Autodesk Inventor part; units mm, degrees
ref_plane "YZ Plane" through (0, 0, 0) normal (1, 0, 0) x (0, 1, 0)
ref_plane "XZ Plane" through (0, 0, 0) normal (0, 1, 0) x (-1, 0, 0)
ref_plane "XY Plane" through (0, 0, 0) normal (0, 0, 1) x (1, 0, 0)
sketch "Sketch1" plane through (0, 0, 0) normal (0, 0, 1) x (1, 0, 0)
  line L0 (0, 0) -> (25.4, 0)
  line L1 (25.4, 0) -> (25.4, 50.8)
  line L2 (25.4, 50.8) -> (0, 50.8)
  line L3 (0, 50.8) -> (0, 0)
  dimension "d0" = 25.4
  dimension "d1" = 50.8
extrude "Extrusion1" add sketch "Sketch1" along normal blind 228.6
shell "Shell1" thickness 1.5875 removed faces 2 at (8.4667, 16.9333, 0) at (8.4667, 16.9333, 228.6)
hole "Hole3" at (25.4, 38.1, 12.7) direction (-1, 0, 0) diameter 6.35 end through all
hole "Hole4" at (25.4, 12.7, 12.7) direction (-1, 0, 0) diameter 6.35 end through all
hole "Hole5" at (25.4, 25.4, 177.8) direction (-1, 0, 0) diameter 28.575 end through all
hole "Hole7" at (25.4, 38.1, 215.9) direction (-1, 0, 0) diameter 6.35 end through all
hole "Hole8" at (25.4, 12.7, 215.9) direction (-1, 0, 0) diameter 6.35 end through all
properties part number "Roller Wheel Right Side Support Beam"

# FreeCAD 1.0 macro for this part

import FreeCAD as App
import Part
import Sketcher
from FreeCAD import Vector
Q = App.Units.Quantity


def faces_at(feature, points):
    """Names of the faces that lie closest to the given points."""
    faces = feature.Shape.Faces
    near = lambda p: min(range(len(faces)), key=lambda i: faces[i].distToShape(Part.Vertex(*p))[0])
    return sorted({f"Face{near(p) + 1}" for p in points})


def add_polygon(sketch, points):
    """Adds a closed chain of lines whose ends are joined by coincident constraints."""
    first, n = sketch.GeometryCount, len(points)
    for a, b in zip(points, points[1:] + points[:1]):
        sketch.addGeometry(Part.LineSegment(App.Vector(*a, 0), App.Vector(*b, 0)), False)
    for i in range(n):
        sketch.addConstraint(Sketcher.Constraint("Coincident", first + i, 2, first + (i + 1) % n, 1))

doc = App.newDocument("Part")
params = doc.addObject("Spreadsheet::Sheet", "Params")
for row, (alias, value) in enumerate([
    ("sketch1_width", "1 in"),
    ("sketch1_height", "2 in"),
    ("pad1_length", "9 in"),
    ("thickness_wall", "0.0625 in"),
    ("sketch2_diameter", "0.25 in"),
    ("hole_diameter", "0.25 in"),
    ("sketch3_diameter", "0.25 in"),
    ("hole2_diameter", "0.25 in"),
    ("sketch4_diameter", "1.125 in"),
    ("hole3_diameter", "1.125 in"),
    ("sketch5_diameter", "0.25 in"),
    ("hole4_diameter", "0.25 in"),
    ("sketch6_diameter", "0.25 in"),
    ("hole5_diameter", "0.25 in"),
], start=1):
    params.set(f"A{row}", alias)
    params.set(f"B{row}", "=" + value)
    params.setAlias(f"B{row}", alias)

body = doc.addObject("PartDesign::Body", "Body")

sketch1 = body.newObject("Sketcher::SketchObject", "Sketch")
sketch1.AttachmentSupport = (doc.getObject("XY_Plane"), [""])
sketch1.MapMode = "FlatFace"
add_polygon(sketch1, [(0, 51), (0, 0), (25, 0), (25, 51)])
sketch1.addConstraint(Sketcher.Constraint("Vertical", 0))
sketch1.addConstraint(Sketcher.Constraint("Horizontal", 1))
sketch1.addConstraint(Sketcher.Constraint("Vertical", 2))
sketch1.addConstraint(Sketcher.Constraint("Horizontal", 3))
sketch1.addConstraint(Sketcher.Constraint("Coincident", 0, 2, -1, 1))
sketch1.addConstraint(Sketcher.Constraint("DistanceX", 1, 1, 1, 2, Q("1 in")))
sketch1.addConstraint(Sketcher.Constraint("DistanceY", 0, 2, 0, 1, Q("2 in")))
sketch1.setExpression("Constraints[9]", "Params.sketch1_width")
sketch1.setExpression("Constraints[10]", "Params.sketch1_height")
pad1 = body.newObject("PartDesign::Pad", "Pad")
pad1.Profile = sketch1
pad1.setExpression("Length", "Params.pad1_length")
doc.recompute()

thickness = body.newObject("PartDesign::Thickness", "Thickness")
thickness.Base = (pad1, faces_at(pad1, [(8.467, 16.933, 0), (8.467, 16.933, 228.6)]))
thickness.setExpression("Value", "Params.thickness_wall")
thickness.Reversed = True
thickness.Join = "Intersection"

sketch2 = body.newObject("Sketcher::SketchObject", "Sketch001")
sketch2.AttachmentSupport = (doc.getObject("YZ_Plane"), [""])
sketch2.MapMode = "FlatFace"
sketch2.AttachmentOffset = App.Placement(Vector(0, 0, 1 * 25.4), App.Rotation())
sketch2.addGeometry(Part.Circle(Vector(38.1, 12.7, 0), Vector(0, 0, 1), 3.2), False)
sketch2.addConstraint(Sketcher.Constraint("Diameter", 0, Q("0.25 in")))
sketch2.addConstraint(Sketcher.Constraint("DistanceX", -1, 1, 0, 3, Q("1.5 in")))
sketch2.addConstraint(Sketcher.Constraint("DistanceY", -1, 1, 0, 3, Q("0.5 in")))
sketch2.setExpression("Constraints[0]", "Params.sketch2_diameter")
doc.recompute()
hole = body.newObject("PartDesign::Hole", "Hole")
hole.Profile = sketch2
hole.ThreadType = "None"
hole.setExpression("Diameter", "Params.hole_diameter")
hole.DepthType = "ThroughAll"

sketch3 = body.newObject("Sketcher::SketchObject", "Sketch002")
sketch3.AttachmentSupport = (doc.getObject("YZ_Plane"), [""])
sketch3.MapMode = "FlatFace"
sketch3.AttachmentOffset = App.Placement(Vector(0, 0, 1 * 25.4), App.Rotation())
sketch3.addGeometry(Part.Circle(Vector(12.7, 12.7, 0), Vector(0, 0, 1), 3.2), False)
sketch3.addConstraint(Sketcher.Constraint("Diameter", 0, Q("0.25 in")))
sketch3.addConstraint(Sketcher.Constraint("DistanceX", -1, 1, 0, 3, Q("0.5 in")))
sketch3.addConstraint(Sketcher.Constraint("DistanceY", -1, 1, 0, 3, Q("0.5 in")))
sketch3.setExpression("Constraints[0]", "Params.sketch3_diameter")
doc.recompute()
hole2 = body.newObject("PartDesign::Hole", "Hole001")
hole2.Profile = sketch3
hole2.ThreadType = "None"
hole2.setExpression("Diameter", "Params.hole2_diameter")
hole2.DepthType = "ThroughAll"

sketch4 = body.newObject("Sketcher::SketchObject", "Sketch003")
sketch4.AttachmentSupport = (doc.getObject("YZ_Plane"), [""])
sketch4.MapMode = "FlatFace"
sketch4.AttachmentOffset = App.Placement(Vector(0, 0, 1 * 25.4), App.Rotation())
sketch4.addGeometry(Part.Circle(Vector(25, 178, 0), Vector(0, 0, 1), 14), False)
sketch4.addConstraint(Sketcher.Constraint("Diameter", 0, Q("1.125 in")))
sketch4.addConstraint(Sketcher.Constraint("DistanceX", -1, 1, 0, 3, Q("1 in")))
sketch4.addConstraint(Sketcher.Constraint("DistanceY", -1, 1, 0, 3, Q("7 in")))
sketch4.setExpression("Constraints[0]", "Params.sketch4_diameter")
doc.recompute()
hole3 = body.newObject("PartDesign::Hole", "Hole002")
hole3.Profile = sketch4
hole3.ThreadType = "None"
hole3.setExpression("Diameter", "Params.hole3_diameter")
hole3.DepthType = "ThroughAll"

sketch5 = body.newObject("Sketcher::SketchObject", "Sketch004")
sketch5.AttachmentSupport = (doc.getObject("YZ_Plane"), [""])
sketch5.MapMode = "FlatFace"
sketch5.AttachmentOffset = App.Placement(Vector(0, 0, 1 * 25.4), App.Rotation())
sketch5.addGeometry(Part.Circle(Vector(38.1, 215.9, 0), Vector(0, 0, 1), 3.2), False)
sketch5.addConstraint(Sketcher.Constraint("Diameter", 0, Q("0.25 in")))
sketch5.addConstraint(Sketcher.Constraint("DistanceX", -1, 1, 0, 3, Q("1.5 in")))
sketch5.addConstraint(Sketcher.Constraint("DistanceY", -1, 1, 0, 3, Q("8.5 in")))
sketch5.setExpression("Constraints[0]", "Params.sketch5_diameter")
doc.recompute()
hole4 = body.newObject("PartDesign::Hole", "Hole003")
hole4.Profile = sketch5
hole4.ThreadType = "None"
hole4.setExpression("Diameter", "Params.hole4_diameter")
hole4.DepthType = "ThroughAll"

sketch6 = body.newObject("Sketcher::SketchObject", "Sketch005")
sketch6.AttachmentSupport = (doc.getObject("YZ_Plane"), [""])
sketch6.MapMode = "FlatFace"
sketch6.AttachmentOffset = App.Placement(Vector(0, 0, 1 * 25.4), App.Rotation())
sketch6.addGeometry(Part.Circle(Vector(12.7, 215.9, 0), Vector(0, 0, 1), 3.2), False)
sketch6.addConstraint(Sketcher.Constraint("Diameter", 0, Q("0.25 in")))
sketch6.addConstraint(Sketcher.Constraint("DistanceX", -1, 1, 0, 3, Q("0.5 in")))
sketch6.addConstraint(Sketcher.Constraint("DistanceY", -1, 1, 0, 3, Q("8.5 in")))
sketch6.setExpression("Constraints[0]", "Params.sketch6_diameter")
doc.recompute()
hole5 = body.newObject("PartDesign::Hole", "Hole004")
hole5.Profile = sketch6
hole5.ThreadType = "None"
hole5.setExpression("Diameter", "Params.hole5_diameter")
hole5.DepthType = "ThroughAll"

doc.recompute()
